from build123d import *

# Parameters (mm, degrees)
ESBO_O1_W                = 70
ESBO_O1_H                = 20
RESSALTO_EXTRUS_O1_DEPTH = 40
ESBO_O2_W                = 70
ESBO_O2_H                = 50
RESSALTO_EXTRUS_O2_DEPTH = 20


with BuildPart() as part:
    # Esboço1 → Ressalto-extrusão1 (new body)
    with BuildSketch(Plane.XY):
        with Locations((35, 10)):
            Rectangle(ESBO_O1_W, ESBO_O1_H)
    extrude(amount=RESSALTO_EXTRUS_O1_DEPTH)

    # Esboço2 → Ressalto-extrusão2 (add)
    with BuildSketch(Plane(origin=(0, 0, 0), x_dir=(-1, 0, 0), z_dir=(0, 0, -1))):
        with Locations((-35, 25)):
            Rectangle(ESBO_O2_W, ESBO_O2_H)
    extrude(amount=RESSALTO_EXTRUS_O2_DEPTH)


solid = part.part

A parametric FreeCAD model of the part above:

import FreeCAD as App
import Part
import Sketcher

doc = App.newDocument("Part")
body = doc.addObject("PartDesign::Body", "Body")

# Sketch on XY plane
sketch1 = body.newObject("Sketcher::SketchObject", "Sketch")
sketch1.AttachmentSupport = (doc.getObject("XY_Plane"), [""])
sketch1.MapMode = "FlatFace"
sketch1.addGeometry(Part.LineSegment(App.Vector(0, 20, 0), App.Vector(0, 0, 0)), False)
sketch1.addGeometry(Part.LineSegment(App.Vector(0, 0, 0), App.Vector(70, 0, 0)), False)
sketch1.addGeometry(Part.LineSegment(App.Vector(70, 0, 0), App.Vector(70, 20, 0)), False)
sketch1.addGeometry(Part.LineSegment(App.Vector(70, 20, 0), App.Vector(0, 20, 0)), False)
sketch1.addConstraint(Sketcher.Constraint("Coincident", 0, 2, 1, 1))
sketch1.addConstraint(Sketcher.Constraint("Coincident", 1, 2, 2, 1))
sketch1.addConstraint(Sketcher.Constraint("Coincident", 2, 2, 3, 1))
sketch1.addConstraint(Sketcher.Constraint("Coincident", 3, 2, 0, 1))
sketch1.addConstraint(Sketcher.Constraint("Vertical", 0))
sketch1.addConstraint(Sketcher.Constraint("Horizontal", 1))
sketch1.addConstraint(Sketcher.Constraint("Vertical", 2))
sketch1.addConstraint(Sketcher.Constraint("Horizontal", 3))
sketch1.addConstraint(Sketcher.Constraint("Coincident", 0, 2, -1, 1))
sketch1.addConstraint(Sketcher.Constraint("DistanceX", 1, 1, 1, 2, 70.0))
sketch1.addConstraint(Sketcher.Constraint("DistanceY", 0, 2, 0, 1, 20.0))
pad1 = body.newObject("PartDesign::Pad", "Pad")
pad1.Profile = sketch1
pad1.Length = 40

# Sketch on XY plane
sketch2 = body.newObject("Sketcher::SketchObject", "Sketch001")
sketch2.AttachmentSupport = (doc.getObject("XY_Plane"), [""])
sketch2.MapMode = "FlatFace"
sketch2.addGeometry(Part.LineSegment(App.Vector(70, 50, 0), App.Vector(70, 0, 0)), False)
sketch2.addGeometry(Part.LineSegment(App.Vector(70, 0, 0), App.Vector(0, 0, 0)), False)
sketch2.addGeometry(Part.LineSegment(App.Vector(0, 0, 0), App.Vector(0, 50, 0)), False)
sketch2.addGeometry(Part.LineSegment(App.Vector(0, 50, 0), App.Vector(70, 50, 0)), False)
sketch2.addConstraint(Sketcher.Constraint("Coincident", 0, 2, 1, 1))
sketch2.addConstraint(Sketcher.Constraint("Coincident", 1, 2, 2, 1))
sketch2.addConstraint(Sketcher.Constraint("Coincident", 2, 2, 3, 1))
sketch2.addConstraint(Sketcher.Constraint("Coincident", 3, 2, 0, 1))
sketch2.addConstraint(Sketcher.Constraint("Vertical", 0))
sketch2.addConstraint(Sketcher.Constraint("Horizontal", 1))
sketch2.addConstraint(Sketcher.Constraint("Vertical", 2))
sketch2.addConstraint(Sketcher.Constraint("Horizontal", 3))
sketch2.addConstraint(Sketcher.Constraint("Coincident", 1, 2, -1, 1))
sketch2.addConstraint(Sketcher.Constraint("DistanceX", 1, 2, 1, 1, 70.0))
sketch2.addConstraint(Sketcher.Constraint("DistanceY", 0, 2, 0, 1, 50.0))
pad2 = body.newObject("PartDesign::Pad", "Pad001")
pad2.Profile = sketch2
pad2.Length = 20
pad2.Reversed = True

doc.recompute()
